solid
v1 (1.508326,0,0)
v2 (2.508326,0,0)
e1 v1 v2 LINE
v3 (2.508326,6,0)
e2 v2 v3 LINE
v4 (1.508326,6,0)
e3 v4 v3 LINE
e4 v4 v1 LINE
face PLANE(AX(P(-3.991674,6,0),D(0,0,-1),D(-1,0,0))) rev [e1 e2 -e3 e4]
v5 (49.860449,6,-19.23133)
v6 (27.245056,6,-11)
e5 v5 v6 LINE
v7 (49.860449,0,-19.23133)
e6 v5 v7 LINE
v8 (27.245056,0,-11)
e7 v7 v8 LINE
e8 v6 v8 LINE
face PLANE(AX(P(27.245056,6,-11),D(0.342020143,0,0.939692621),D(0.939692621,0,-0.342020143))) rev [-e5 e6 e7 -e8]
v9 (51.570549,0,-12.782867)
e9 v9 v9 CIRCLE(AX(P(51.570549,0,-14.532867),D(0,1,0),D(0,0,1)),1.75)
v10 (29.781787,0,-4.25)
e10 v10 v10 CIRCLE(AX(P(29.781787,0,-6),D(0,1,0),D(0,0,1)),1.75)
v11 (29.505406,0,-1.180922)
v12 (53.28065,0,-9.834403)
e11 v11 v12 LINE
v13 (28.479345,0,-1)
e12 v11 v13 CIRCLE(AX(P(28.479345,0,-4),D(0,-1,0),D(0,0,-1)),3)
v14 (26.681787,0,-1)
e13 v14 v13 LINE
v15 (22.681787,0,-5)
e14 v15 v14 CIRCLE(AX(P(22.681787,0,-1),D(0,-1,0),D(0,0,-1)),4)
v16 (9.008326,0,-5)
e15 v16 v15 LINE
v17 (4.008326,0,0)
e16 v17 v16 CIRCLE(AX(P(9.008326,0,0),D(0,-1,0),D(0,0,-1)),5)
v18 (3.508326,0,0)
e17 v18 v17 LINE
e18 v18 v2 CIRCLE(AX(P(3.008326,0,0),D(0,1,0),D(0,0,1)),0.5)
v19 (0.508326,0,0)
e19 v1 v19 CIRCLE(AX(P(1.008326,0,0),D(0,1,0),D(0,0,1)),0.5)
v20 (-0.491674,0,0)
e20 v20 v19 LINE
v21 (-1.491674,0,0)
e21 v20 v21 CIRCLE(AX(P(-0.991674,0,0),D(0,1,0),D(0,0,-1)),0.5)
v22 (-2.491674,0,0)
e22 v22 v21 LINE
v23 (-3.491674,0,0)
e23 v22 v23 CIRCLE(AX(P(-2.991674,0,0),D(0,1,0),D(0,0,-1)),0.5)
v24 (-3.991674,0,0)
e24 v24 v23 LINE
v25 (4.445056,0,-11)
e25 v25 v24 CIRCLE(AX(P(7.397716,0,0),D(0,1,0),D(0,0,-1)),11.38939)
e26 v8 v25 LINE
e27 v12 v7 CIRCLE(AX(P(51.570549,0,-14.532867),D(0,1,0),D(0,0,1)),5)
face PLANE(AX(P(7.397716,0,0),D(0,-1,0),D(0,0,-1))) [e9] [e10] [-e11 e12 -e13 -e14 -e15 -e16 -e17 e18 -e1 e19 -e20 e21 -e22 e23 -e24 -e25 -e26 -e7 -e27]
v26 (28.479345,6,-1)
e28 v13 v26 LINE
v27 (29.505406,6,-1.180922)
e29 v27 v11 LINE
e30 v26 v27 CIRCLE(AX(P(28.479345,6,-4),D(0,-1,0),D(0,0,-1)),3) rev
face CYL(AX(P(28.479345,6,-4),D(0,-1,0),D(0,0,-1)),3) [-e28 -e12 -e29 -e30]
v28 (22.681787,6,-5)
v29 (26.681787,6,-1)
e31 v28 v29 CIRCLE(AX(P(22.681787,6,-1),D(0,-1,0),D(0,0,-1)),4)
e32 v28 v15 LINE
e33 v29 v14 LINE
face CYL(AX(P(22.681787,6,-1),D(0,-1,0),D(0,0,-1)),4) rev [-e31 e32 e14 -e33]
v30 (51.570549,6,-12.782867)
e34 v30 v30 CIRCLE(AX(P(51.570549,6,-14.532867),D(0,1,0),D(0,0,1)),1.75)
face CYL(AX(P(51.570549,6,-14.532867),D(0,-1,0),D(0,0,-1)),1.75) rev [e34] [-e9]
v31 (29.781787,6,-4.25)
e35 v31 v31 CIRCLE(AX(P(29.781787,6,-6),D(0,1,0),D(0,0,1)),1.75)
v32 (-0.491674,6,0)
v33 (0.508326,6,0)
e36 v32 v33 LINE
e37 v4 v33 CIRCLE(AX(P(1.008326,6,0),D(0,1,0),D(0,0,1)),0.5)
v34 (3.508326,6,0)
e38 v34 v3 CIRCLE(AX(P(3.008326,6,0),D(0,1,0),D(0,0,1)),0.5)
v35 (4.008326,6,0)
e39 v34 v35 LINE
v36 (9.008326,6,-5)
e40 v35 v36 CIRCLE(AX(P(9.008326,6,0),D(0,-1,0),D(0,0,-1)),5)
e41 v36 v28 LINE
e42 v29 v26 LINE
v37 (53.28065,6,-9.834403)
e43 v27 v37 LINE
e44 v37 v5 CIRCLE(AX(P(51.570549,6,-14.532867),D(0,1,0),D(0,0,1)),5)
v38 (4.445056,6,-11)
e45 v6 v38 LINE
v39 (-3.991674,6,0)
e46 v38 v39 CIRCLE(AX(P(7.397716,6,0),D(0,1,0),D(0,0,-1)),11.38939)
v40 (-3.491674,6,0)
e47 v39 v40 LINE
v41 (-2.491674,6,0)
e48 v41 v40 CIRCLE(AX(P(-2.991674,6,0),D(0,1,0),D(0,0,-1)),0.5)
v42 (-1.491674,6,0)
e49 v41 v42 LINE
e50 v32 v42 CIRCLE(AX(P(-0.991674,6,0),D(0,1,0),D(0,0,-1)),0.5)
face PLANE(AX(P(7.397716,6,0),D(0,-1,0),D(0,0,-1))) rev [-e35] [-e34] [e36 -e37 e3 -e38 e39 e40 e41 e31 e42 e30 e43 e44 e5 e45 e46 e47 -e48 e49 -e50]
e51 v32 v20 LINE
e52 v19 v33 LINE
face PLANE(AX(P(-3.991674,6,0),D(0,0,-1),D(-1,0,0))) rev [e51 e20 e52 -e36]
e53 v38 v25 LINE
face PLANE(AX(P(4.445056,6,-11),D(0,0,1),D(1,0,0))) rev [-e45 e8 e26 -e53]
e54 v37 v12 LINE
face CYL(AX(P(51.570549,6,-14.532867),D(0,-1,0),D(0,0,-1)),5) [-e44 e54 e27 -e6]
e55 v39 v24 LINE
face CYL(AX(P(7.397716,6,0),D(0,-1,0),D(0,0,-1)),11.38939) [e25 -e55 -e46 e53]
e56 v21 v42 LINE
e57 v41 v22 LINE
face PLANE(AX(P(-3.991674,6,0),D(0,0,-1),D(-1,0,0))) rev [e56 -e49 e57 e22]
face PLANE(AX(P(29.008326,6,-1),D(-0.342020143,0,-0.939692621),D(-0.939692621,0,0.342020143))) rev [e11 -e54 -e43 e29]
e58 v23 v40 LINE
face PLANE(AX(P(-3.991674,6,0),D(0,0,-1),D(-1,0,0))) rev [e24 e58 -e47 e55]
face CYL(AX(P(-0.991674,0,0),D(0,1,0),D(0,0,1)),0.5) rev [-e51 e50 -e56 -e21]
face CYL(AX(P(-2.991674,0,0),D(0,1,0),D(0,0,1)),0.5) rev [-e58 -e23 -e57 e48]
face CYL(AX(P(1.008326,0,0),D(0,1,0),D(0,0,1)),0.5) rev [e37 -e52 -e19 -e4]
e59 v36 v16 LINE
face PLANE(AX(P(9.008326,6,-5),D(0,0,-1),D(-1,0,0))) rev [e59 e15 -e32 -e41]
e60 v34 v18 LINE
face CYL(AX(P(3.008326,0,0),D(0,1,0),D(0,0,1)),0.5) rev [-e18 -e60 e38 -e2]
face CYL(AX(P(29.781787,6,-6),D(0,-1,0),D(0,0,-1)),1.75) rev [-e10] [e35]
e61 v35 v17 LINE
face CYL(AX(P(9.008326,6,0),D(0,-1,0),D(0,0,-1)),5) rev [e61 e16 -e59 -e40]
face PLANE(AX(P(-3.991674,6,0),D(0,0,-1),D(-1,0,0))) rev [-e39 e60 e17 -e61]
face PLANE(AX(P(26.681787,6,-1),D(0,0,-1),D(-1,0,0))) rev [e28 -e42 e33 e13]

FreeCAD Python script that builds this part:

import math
import FreeCAD as App
import Part
import Sketcher

V = App.Vector
Q = App.Units.Quantity


def edges_at(feature, points):
    """Names of the edges that pass closest to the given points."""
    edges = feature.Shape.Edges
    near = lambda p: min(range(len(edges)), key=lambda i: edges[i].distToShape(Part.Vertex(*p))[0])
    return sorted({f"Edge{near(p) + 1}" for p in points})

doc = App.newDocument("Part")
params = doc.addObject("Spreadsheet::Sheet", "Params")
for row, (alias, value) in enumerate([
    ("sketch1_radius", "5 mm"),
    ("sketch1_radius2", "4 mm"),
    ("sketch1_diameter", "3.5 mm"),
    ("sketch1_width", "8 mm"),
    ("sketch1_width2", "22.8 mm"),
    ("pad1_length", "6 mm"),
    ("fillet_radius", "3 mm"),
    ("sketch2_diameter", "1 mm"),
], start=1):
    params.set(f"A{row}", alias)
    params.set(f"B{row}", "=" + value)
    params.setAlias(f"B{row}", alias)

body = doc.addObject("PartDesign::Body", "Body")

# Sketch on XZ plane
sketch1 = body.newObject("Sketcher::SketchObject", "Sketch")
sketch1.AttachmentSupport = (doc.getObject("XZ_Plane"), [""])
sketch1.MapMode = "FlatFace"
sketch1.addGeometry([
    Part.LineSegment(V(-4, 0, 0), V(4, 0, 0)),  # 0
    Part.ArcOfCircle(Part.Circle(V(9, 0, 0), V(0, 0, 1), 5), math.radians(180), math.radians(270)),  # 1
    Part.LineSegment(V(9, -5, 0), V(22.7, -5, 0)),  # 2
    Part.ArcOfCircle(Part.Circle(V(22.7, -1, 0), V(0, 0, 1), 4), math.radians(-90), math.radians(0)),  # 3
    Part.LineSegment(V(26.7, -1, 0), V(29, -1, 0)),  # 4
    Part.LineSegment(V(29, -1, 0), V(53.3, -9.8, 0)),  # 5
    Part.ArcOfCircle(Part.Circle(V(51.6, -14.5, 0), V(0, 0, 1), 5), math.radians(-110), math.radians(70)),  # 6
    Part.LineSegment(V(49.9, -19.2, 0), V(27.2, -11, 0)),  # 7
    Part.LineSegment(V(27.2, -11, 0), V(4.4, -11, 0)),  # 8
    Part.ArcOfCircle(Part.Circle(V(7.4, 0, 0), V(0, 0, 1), 11.4), math.radians(180), math.radians(255)),  # 9
    Part.Circle(V(29.8, -6, 0), V(0, 0, 1), 1.8),  # 10
    Part.Circle(V(51.6, -14.5, 0), V(0, 0, 1), 1.8),  # 11
], False)
sketch1.addConstraint([
    Sketcher.Constraint("Coincident", 0, 2, 1, 1),
    Sketcher.Constraint("Tangent", 1, 2, 2, 1),
    Sketcher.Constraint("Tangent", 2, 2, 3, 1),
    Sketcher.Constraint("Coincident", 3, 2, 4, 1),
    Sketcher.Constraint("Coincident", 4, 2, 5, 1),
    Sketcher.Constraint("Tangent", 5, 2, 6, 2),
    Sketcher.Constraint("Tangent", 6, 1, 7, 1),
    Sketcher.Constraint("Coincident", 7, 2, 8, 1),
    Sketcher.Constraint("Coincident", 8, 2, 9, 2),
    Sketcher.Constraint("Coincident", 9, 1, 0, 1),
    Sketcher.Constraint("Horizontal", 0),
    Sketcher.Constraint("Horizontal", 2),
    Sketcher.Constraint("Horizontal", 4),
    Sketcher.Constraint("Horizontal", 8),
    Sketcher.Constraint("Coincident", 11, 3, 6, 3),
    Sketcher.Constraint("Equal", 1, 6),
    Sketcher.Constraint("Equal", 10, 11),
    Sketcher.Constraint("PointOnObject", 1, 3, -1),
    Sketcher.Constraint("PointOnObject", 9, 3, -1),
    Sketcher.Constraint("PointOnObject", 0, 2, -1),
    Sketcher.Constraint("Parallel", 5, 7),
    Sketcher.Constraint("Radius", 1, 5.0),
    Sketcher.Constraint("Radius", 3, 4.0),
    Sketcher.Constraint("Diameter", 10, 3.5),
    Sketcher.Constraint("DistanceX", 0, 1, 0, 2, 8.0),
    Sketcher.Constraint("Angle", 5, Q("-20 deg")),
    Sketcher.Constraint("DistanceX", 8, 2, 8, 1, 22.8),
    Sketcher.Constraint("DistanceY", 10, 3, -1, 1, 6.0),
    Sketcher.Constraint("DistanceY", 3, 2, -1, 1, 1.0),
    Sketcher.Constraint("DistanceY", 7, 2, -1, 1, 11.0),
    Sketcher.Constraint("DistanceX", 1, 3, 4, 2, 20.0),
    Sketcher.Constraint("DistanceX", 3, 3, 10, 3, 7.1),
    Sketcher.Constraint("DistanceX", 2, 1, 2, 2, 13.67346),
    Sketcher.Constraint("DistanceX", -1, 1, 6, 3, 51.570549),
    Sketcher.Constraint("DistanceY", 6, 1, -1, 1, 19.23133),
])
sketch1.setExpression("Constraints[21]", "Params.sketch1_radius")
sketch1.setExpression("Constraints[22]", "Params.sketch1_radius2")
sketch1.setExpression("Constraints[23]", "Params.sketch1_diameter")
sketch1.setExpression("Constraints[24]", "Params.sketch1_width")
sketch1.setExpression("Constraints[26]", "Params.sketch1_width2")
pad1 = body.newObject("PartDesign::Pad", "Pad")
pad1.Profile = sketch1
pad1.setExpression("Length", "Params.pad1_length")
pad1.Reversed = True
doc.recompute()

fillet = body.newObject("PartDesign::Fillet", "Fillet")
fillet.Base = (pad1, edges_at(pad1, [(29.008, 3, -1)]))
fillet.setExpression("Radius", "Params.fillet_radius")

# Sketch on XZ plane
sketch2 = body.newObject("Sketcher::SketchObject", "Sketch001")
sketch2.AttachmentSupport = (doc.getObject("XZ_Plane"), [""])
sketch2.MapMode = "FlatFace"
sketch2.AttachmentOffset = App.Placement(V(0, 0, -6), App.Rotation())
sketch2.addGeometry([
    Part.Circle(V(1, 0, 0), V(0, 0, 1), 0.5),
    Part.Circle(V(3, 0, 0), V(0, 0, 1), 0.5),
    Part.Circle(V(-1, 0, 0), V(0, 0, 1), 0.5),
    Part.Circle(V(-3, 0, 0), V(0, 0, 1), 0.5),
], False)
sketch2.addConstraint([
    Sketcher.Constraint("Equal", 0, 1),
    Sketcher.Constraint("Equal", 1, 2),
    Sketcher.Constraint("Equal", 2, 3),
    Sketcher.Constraint("PointOnObject", 0, 3, -1),
    Sketcher.Constraint("PointOnObject", 1, 3, -1),
    Sketcher.Constraint("PointOnObject", 2, 3, -1),
    Sketcher.Constraint("PointOnObject", 3, 3, -1),
    Sketcher.Constraint("Diameter", 0, 1.0),
    Sketcher.Constraint("DistanceX", 0, 3, 1, 3, 2.0),
    Sketcher.Constraint("DistanceX", 2, 3, 0, 3, 2.0),
    Sketcher.Constraint("DistanceX", 3, 3, 2, 3, 2.0),
    Sketcher.Constraint("DistanceX", -1, 1, 0, 3, 1.008326),
])
sketch2.setExpression("Constraints[7]", "Params.sketch2_diameter")
pocket1 = body.newObject("PartDesign::Pocket", "Pocket")
pocket1.Profile = sketch2
pocket1.Type = "ThroughAll"
pocket1.Reversed = True

doc.recompute()
